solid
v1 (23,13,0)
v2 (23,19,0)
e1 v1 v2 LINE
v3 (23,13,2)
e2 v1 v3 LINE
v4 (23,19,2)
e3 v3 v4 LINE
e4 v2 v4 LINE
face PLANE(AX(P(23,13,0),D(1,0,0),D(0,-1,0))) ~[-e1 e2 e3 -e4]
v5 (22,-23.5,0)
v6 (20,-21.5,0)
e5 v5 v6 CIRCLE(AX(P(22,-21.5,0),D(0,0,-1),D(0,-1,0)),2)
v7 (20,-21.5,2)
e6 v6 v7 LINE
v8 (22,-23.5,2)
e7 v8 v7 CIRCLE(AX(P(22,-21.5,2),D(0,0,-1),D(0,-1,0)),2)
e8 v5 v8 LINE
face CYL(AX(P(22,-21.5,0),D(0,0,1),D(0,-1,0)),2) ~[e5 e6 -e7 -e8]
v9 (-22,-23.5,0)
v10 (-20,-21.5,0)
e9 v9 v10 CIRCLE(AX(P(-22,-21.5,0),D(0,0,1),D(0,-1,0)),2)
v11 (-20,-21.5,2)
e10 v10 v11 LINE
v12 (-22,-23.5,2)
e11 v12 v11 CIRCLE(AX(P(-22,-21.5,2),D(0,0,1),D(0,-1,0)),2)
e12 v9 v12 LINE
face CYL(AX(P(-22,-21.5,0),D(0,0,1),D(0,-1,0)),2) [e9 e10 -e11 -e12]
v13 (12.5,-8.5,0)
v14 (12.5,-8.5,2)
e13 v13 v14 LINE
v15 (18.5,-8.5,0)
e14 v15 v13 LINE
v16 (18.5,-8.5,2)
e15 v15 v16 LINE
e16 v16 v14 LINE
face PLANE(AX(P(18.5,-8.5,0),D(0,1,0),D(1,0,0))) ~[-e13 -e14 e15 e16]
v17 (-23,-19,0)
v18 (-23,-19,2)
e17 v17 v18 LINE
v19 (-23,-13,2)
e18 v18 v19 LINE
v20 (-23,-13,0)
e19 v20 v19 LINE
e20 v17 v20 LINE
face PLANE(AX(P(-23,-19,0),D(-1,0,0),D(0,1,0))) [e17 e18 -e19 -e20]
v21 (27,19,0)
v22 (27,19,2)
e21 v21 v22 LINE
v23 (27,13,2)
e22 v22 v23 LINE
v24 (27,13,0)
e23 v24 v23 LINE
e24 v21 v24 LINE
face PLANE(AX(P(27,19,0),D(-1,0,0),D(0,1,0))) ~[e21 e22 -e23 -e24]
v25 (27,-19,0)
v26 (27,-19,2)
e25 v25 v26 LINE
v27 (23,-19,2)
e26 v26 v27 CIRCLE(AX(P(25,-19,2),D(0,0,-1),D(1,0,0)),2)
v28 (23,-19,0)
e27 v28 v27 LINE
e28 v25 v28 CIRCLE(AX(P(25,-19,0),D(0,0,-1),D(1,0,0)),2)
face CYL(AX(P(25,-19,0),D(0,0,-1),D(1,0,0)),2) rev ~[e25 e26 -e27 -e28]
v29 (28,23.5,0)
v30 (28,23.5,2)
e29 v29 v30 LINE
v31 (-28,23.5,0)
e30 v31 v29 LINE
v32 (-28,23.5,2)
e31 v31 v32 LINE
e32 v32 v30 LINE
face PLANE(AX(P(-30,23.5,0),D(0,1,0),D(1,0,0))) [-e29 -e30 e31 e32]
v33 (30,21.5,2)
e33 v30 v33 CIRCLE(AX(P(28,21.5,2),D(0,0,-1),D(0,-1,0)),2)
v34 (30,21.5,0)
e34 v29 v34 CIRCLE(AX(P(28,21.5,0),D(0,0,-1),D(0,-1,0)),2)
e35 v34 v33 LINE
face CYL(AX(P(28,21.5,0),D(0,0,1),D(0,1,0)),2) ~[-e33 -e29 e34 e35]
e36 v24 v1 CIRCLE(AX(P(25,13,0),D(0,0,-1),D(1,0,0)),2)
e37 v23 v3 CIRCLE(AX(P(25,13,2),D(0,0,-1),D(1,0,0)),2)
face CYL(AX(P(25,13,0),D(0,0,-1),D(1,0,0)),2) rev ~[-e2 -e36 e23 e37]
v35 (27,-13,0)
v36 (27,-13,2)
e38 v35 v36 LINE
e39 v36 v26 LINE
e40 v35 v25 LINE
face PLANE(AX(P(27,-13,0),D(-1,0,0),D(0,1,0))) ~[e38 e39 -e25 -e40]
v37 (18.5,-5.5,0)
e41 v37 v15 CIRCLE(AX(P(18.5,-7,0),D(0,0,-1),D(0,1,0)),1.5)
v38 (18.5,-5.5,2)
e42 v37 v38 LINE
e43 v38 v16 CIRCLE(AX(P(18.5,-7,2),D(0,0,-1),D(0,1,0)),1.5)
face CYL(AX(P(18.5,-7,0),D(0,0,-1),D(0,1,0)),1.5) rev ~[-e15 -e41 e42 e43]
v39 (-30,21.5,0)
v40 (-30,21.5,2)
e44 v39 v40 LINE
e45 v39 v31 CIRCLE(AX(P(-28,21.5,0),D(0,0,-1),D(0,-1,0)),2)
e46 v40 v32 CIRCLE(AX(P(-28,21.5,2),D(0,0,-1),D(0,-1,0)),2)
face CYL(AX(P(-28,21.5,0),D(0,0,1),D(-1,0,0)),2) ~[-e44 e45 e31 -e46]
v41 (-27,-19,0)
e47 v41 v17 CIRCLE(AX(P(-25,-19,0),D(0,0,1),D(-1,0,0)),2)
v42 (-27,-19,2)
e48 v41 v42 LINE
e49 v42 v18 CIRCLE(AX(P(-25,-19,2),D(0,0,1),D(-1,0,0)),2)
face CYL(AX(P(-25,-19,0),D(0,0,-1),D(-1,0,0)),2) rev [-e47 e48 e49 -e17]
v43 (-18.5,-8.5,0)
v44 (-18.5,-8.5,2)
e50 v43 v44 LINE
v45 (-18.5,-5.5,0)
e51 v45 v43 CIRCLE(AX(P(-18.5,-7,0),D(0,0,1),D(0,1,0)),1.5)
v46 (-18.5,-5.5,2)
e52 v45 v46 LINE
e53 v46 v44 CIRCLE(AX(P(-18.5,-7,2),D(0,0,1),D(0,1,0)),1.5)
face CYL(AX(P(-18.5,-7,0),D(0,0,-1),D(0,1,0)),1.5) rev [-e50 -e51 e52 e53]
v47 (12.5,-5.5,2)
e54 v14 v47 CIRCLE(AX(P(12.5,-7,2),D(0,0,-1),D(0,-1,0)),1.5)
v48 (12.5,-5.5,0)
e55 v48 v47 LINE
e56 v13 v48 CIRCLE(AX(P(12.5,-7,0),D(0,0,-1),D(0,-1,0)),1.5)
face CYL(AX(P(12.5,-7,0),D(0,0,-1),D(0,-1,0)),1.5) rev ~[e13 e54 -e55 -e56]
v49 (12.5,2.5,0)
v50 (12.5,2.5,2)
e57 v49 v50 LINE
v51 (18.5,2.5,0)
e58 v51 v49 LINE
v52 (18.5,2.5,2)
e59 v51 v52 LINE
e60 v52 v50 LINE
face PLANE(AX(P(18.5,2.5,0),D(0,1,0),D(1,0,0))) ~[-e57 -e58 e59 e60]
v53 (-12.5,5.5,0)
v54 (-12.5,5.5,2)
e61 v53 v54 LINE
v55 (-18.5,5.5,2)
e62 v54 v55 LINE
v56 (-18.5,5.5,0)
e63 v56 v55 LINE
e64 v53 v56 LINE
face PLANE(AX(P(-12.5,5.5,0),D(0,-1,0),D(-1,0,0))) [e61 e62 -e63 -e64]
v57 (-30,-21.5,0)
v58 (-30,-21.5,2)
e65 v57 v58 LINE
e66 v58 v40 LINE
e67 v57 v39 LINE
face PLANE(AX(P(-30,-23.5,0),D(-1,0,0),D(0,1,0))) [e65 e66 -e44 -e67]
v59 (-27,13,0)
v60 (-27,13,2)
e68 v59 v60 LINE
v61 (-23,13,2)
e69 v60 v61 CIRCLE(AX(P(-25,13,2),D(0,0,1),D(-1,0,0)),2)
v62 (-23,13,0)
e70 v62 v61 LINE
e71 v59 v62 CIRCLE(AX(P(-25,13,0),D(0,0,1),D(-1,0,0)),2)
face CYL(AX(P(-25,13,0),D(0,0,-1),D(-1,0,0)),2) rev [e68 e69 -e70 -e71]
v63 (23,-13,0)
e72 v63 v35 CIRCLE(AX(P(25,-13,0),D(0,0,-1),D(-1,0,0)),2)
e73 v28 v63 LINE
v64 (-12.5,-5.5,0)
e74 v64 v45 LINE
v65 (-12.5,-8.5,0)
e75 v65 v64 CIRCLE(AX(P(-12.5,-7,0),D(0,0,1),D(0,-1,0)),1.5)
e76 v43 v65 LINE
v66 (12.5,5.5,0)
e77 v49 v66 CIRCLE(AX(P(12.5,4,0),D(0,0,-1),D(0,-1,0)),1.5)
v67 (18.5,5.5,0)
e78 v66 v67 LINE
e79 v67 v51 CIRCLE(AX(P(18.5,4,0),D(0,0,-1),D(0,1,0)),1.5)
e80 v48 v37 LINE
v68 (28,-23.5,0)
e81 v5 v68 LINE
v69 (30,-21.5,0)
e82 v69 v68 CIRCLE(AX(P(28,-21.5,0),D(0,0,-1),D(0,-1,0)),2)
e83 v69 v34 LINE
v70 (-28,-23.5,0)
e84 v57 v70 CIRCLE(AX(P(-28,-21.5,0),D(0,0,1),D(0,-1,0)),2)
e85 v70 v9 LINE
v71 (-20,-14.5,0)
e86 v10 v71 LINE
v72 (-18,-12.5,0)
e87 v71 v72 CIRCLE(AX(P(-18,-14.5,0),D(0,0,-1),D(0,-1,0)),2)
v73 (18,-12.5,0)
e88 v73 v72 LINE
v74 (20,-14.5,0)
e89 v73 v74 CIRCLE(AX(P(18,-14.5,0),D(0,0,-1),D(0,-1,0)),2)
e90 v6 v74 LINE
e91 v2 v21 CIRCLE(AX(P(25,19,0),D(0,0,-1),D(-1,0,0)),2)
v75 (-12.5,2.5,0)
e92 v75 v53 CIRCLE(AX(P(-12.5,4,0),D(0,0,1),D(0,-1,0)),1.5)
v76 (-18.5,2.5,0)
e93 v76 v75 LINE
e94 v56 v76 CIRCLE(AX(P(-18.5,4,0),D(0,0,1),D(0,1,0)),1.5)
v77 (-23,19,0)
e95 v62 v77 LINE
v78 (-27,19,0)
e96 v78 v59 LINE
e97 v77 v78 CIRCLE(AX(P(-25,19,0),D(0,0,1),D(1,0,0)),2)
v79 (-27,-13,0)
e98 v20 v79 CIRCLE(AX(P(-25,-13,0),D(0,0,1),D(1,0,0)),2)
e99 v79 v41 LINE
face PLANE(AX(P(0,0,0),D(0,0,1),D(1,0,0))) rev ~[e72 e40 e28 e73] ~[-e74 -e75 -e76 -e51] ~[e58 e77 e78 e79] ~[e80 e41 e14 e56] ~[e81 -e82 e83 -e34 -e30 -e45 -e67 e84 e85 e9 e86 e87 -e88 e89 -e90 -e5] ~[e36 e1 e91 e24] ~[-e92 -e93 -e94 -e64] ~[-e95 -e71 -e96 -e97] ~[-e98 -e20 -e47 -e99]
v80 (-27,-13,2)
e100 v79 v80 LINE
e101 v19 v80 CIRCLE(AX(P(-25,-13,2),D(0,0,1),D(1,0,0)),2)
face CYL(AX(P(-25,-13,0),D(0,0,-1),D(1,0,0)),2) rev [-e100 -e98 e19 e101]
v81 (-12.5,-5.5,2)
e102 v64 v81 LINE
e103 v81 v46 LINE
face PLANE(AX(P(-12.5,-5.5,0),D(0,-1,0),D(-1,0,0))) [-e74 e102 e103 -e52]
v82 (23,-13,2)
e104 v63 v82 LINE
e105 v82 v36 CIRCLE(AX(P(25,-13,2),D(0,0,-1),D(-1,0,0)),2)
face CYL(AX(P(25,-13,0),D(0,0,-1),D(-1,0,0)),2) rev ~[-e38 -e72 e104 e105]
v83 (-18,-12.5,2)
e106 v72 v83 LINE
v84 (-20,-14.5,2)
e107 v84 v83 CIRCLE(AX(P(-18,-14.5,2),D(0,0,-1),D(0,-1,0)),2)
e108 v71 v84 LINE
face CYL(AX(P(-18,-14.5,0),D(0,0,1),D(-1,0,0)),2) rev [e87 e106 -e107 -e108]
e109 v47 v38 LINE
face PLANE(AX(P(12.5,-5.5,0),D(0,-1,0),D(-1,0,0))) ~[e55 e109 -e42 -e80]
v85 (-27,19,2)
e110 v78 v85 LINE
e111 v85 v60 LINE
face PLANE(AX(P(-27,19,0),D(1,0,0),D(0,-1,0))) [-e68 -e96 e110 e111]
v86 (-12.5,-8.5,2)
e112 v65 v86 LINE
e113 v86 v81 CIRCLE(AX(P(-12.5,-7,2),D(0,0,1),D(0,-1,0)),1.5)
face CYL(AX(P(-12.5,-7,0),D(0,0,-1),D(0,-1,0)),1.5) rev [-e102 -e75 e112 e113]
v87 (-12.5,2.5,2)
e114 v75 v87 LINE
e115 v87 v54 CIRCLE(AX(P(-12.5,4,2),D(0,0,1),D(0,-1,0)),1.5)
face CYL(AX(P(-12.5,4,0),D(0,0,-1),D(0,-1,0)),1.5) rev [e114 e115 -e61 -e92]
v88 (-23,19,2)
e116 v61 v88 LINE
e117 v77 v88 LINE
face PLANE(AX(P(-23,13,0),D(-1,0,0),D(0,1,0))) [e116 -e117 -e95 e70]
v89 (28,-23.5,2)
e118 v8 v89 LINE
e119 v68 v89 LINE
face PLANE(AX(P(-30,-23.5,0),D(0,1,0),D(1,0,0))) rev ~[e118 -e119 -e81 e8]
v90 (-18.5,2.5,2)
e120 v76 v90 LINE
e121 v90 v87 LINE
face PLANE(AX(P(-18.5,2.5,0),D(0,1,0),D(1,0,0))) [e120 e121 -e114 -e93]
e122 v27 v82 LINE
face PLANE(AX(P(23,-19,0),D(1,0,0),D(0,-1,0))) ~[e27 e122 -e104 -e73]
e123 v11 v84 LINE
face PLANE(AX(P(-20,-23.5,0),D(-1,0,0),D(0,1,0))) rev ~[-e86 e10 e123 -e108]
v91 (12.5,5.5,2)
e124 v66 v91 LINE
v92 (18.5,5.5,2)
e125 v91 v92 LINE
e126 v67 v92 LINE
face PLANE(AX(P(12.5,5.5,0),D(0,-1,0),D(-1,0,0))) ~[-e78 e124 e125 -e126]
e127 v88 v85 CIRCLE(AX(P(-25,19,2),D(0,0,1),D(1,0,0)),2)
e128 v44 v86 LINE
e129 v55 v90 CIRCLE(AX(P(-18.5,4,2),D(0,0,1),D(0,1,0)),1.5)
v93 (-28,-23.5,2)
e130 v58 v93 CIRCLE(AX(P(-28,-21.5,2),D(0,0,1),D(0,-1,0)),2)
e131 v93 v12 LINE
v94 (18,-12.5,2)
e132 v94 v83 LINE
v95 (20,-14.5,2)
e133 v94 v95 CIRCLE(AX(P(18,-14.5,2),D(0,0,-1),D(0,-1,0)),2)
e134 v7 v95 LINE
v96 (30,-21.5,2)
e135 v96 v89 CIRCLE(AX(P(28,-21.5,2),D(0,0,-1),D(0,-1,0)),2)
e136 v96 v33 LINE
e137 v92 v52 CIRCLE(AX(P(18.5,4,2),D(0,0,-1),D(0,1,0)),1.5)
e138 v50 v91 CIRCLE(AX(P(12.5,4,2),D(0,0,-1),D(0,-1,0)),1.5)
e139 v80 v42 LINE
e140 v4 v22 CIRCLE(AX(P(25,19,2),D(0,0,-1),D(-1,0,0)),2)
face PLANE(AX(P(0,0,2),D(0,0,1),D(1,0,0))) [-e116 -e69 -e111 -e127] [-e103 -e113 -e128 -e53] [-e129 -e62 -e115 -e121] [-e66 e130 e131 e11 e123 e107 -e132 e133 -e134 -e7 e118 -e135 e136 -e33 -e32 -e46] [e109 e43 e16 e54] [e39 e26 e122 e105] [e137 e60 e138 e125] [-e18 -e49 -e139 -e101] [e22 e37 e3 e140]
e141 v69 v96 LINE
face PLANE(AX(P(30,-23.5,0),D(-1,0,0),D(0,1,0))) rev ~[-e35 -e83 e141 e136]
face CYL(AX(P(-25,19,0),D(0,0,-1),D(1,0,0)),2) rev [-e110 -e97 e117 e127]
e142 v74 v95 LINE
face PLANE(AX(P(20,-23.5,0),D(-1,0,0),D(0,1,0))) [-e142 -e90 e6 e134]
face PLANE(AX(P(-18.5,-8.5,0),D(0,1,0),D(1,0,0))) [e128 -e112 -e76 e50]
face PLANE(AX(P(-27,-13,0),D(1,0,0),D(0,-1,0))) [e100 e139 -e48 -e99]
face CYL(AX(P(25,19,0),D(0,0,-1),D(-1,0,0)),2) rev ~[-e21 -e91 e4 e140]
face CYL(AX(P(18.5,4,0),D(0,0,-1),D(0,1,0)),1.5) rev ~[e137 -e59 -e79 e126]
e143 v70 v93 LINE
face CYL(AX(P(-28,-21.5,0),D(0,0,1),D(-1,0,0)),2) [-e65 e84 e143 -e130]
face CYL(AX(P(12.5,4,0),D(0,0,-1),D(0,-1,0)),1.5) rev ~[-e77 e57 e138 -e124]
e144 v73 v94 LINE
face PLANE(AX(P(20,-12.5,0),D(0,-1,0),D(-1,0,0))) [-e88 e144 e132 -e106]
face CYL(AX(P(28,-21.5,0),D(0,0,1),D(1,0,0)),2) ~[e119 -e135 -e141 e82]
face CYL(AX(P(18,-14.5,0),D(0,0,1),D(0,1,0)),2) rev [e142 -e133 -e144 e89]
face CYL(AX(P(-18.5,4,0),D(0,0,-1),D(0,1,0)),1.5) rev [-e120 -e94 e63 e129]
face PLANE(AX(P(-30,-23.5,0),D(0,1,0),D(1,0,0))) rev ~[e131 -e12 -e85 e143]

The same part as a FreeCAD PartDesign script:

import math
import FreeCAD as App
import Part
import Sketcher

V = App.Vector
Q = App.Units.Quantity


def edges_at(feature, points):
    """Names of the edges that pass closest to the given points."""
    edges = feature.Shape.Edges
    near = lambda p: min(range(len(edges)), key=lambda i: edges[i].distToShape(Part.Vertex(*p))[0])
    return sorted({f"Edge{near(p) + 1}" for p in points})


def add_polygon(sketch, points):
    """Adds a closed chain of lines whose ends are joined by coincident constraints."""
    first, n = sketch.GeometryCount, len(points)
    for a, b in zip(points, points[1:] + points[:1]):
        sketch.addGeometry(Part.LineSegment(App.Vector(*a, 0), App.Vector(*b, 0)), False)
    for i in range(n):
        sketch.addConstraint(Sketcher.Constraint("Coincident", first + i, 2, first + (i + 1) % n, 1))

doc = App.newDocument("Part")
params = doc.addObject("Spreadsheet::Sheet", "Params")
for row, (alias, value) in enumerate([
    ("sketch1_width", "60 mm"),
    ("sketch1_height", "47 mm"),
    ("pad1_length", "2 mm"),
    ("sketch2_width", "40 mm"),
    ("sketch2_height", "11 mm"),
    ("pocket1_length", "2 mm"),
    ("sketch3_radius", "2 mm"),
    ("sketch3_height", "6 mm"),
    ("pocket2_length", "2 mm"),
    ("sketch4_radius", "2 mm"),
    ("sketch4_height", "6 mm"),
    ("pocket3_length", "2 mm"),
    ("sketch5_radius", "1.5 mm"),
    ("sketch5_width", "6 mm"),
    ("pocket4_length", "2 mm"),
    ("sketch6_radius", "1.5 mm"),
    ("sketch6_width", "6 mm"),
    ("pocket5_length", "2 mm"),
    ("fillet_radius", "2 mm"),
], start=1):
    params.set(f"A{row}", alias)
    params.set(f"B{row}", "=" + value)
    params.setAlias(f"B{row}", alias)

body = doc.addObject("PartDesign::Body", "Body")

sketch1 = body.newObject("Sketcher::SketchObject", "Sketch")
sketch1.AttachmentSupport = (doc.getObject("XY_Plane"), [""])
sketch1.MapMode = "FlatFace"
add_polygon(sketch1, [(-30, 24), (-30, -24), (30, -24), (30, 24)])
sketch1.addConstraint([
    Sketcher.Constraint("Vertical", 0),
    Sketcher.Constraint("Horizontal", 1),
    Sketcher.Constraint("Vertical", 2),
    Sketcher.Constraint("Horizontal", 3),
    Sketcher.Constraint("Symmetric", 0, 2, 2, 2, -1, 1),
    Sketcher.Constraint("DistanceX", 1, 1, 1, 2, Q("60 mm")),
    Sketcher.Constraint("DistanceY", 0, 2, 0, 1, Q("47 mm")),
])
sketch1.setExpression("Constraints[9]", "Params.sketch1_width")
sketch1.setExpression("Constraints[10]", "Params.sketch1_height")
pad1 = body.newObject("PartDesign::Pad", "Pad")
pad1.Profile = sketch1
pad1.setExpression("Length", "Params.pad1_length")

sketch2 = body.newObject("Sketcher::SketchObject", "Sketch001")
sketch2.AttachmentSupport = (doc.getObject("XY_Plane"), [""])
sketch2.MapMode = "FlatFace"
add_polygon(sketch2, [(20, -12), (20, -24), (-20, -24), (-20, -12)])
sketch2.addConstraint([
    Sketcher.Constraint("Vertical", 0),
    Sketcher.Constraint("Horizontal", 1),
    Sketcher.Constraint("Vertical", 2),
    Sketcher.Constraint("Horizontal", 3),
    Sketcher.Constraint("DistanceX", 1, 2, 1, 1, Q("40 mm")),
    Sketcher.Constraint("DistanceY", 0, 2, 0, 1, Q("11 mm")),
    Sketcher.Constraint("DistanceX", -1, 1, 0, 2, Q("20 mm")),
    Sketcher.Constraint("DistanceY", 0, 2, -1, 1, Q("23.5 mm")),
])
sketch2.setExpression("Constraints[8]", "Params.sketch2_width")
sketch2.setExpression("Constraints[9]", "Params.sketch2_height")
pocket1 = body.newObject("PartDesign::Pocket", "Pocket")
pocket1.Profile = sketch2
pocket1.setExpression("Length", "Params.pocket1_length")
pocket1.Reversed = True

sketch3 = body.newObject("Sketcher::SketchObject", "Sketch002")
sketch3.AttachmentSupport = (doc.getObject("XY_Plane"), [""])
sketch3.MapMode = "FlatFace"
sketch3.addGeometry([
    Part.LineSegment(V(-27, -19, 0), V(-27, -13, 0)),
    Part.ArcOfCircle(Part.Circle(V(-25, -13, 0), V(0, 0, 1), 2), math.radians(0), math.radians(180)),
    Part.LineSegment(V(-23, -13, 0), V(-23, -19, 0)),
    Part.ArcOfCircle(Part.Circle(V(-25, -19, 0), V(0, 0, 1), 2), math.radians(180), math.radians(360)),
], False)
sketch3.addConstraint([
    Sketcher.Constraint("Tangent", 0, 2, 1, 2),
    Sketcher.Constraint("Tangent", 1, 1, 2, 1),
    Sketcher.Constraint("Tangent", 2, 2, 3, 2),
    Sketcher.Constraint("Tangent", 3, 1, 0, 1),
    Sketcher.Constraint("Vertical", 0),
    Sketcher.Constraint("Vertical", 2),
    Sketcher.Constraint("Radius", 1, Q("2 mm")),
    Sketcher.Constraint("DistanceY", 0, 1, 0, 2, Q("6 mm")),
    Sketcher.Constraint("DistanceX", 1, 3, -1, 1, Q("25 mm")),
    Sketcher.Constraint("DistanceY", 1, 3, -1, 1, Q("13 mm")),
])
sketch3.setExpression("Constraints[6]", "Params.sketch3_radius")
sketch3.setExpression("Constraints[7]", "Params.sketch3_height")
pocket2 = body.newObject("PartDesign::Pocket", "Pocket001")
pocket2.Profile = sketch3
pocket2.setExpression("Length", "Params.pocket2_length")
pocket2.Reversed = True

sketch4 = body.newObject("Sketcher::SketchObject", "Sketch003")
sketch4.AttachmentSupport = (doc.getObject("XY_Plane"), [""])
sketch4.MapMode = "FlatFace"
sketch4.addGeometry([
    Part.LineSegment(V(-27, 13, 0), V(-27, 19, 0)),
    Part.ArcOfCircle(Part.Circle(V(-25, 19, 0), V(0, 0, 1), 2), math.radians(0), math.radians(180)),
    Part.LineSegment(V(-23, 19, 0), V(-23, 13, 0)),
    Part.ArcOfCircle(Part.Circle(V(-25, 13, 0), V(0, 0, 1), 2), math.radians(180), math.radians(360)),
], False)
sketch4.addConstraint([
    Sketcher.Constraint("Tangent", 0, 2, 1, 2),
    Sketcher.Constraint("Tangent", 1, 1, 2, 1),
    Sketcher.Constraint("Tangent", 2, 2, 3, 2),
    Sketcher.Constraint("Tangent", 3, 1, 0, 1),
    Sketcher.Constraint("Vertical", 0),
    Sketcher.Constraint("Vertical", 2),
    Sketcher.Constraint("Radius", 1, Q("2 mm")),
    Sketcher.Constraint("DistanceY", 0, 1, 0, 2, Q("6 mm")),
    Sketcher.Constraint("DistanceX", 1, 3, -1, 1, Q("25 mm")),
    Sketcher.Constraint("DistanceY", -1, 1, 1, 3, Q("19 mm")),
])
sketch4.setExpression("Constraints[6]", "Params.sketch4_radius")
sketch4.setExpression("Constraints[7]", "Params.sketch4_height")
pocket3 = body.newObject("PartDesign::Pocket", "Pocket002")
pocket3.Profile = sketch4
pocket3.setExpression("Length", "Params.pocket3_length")
pocket3.Reversed = True

sketch5 = body.newObject("Sketcher::SketchObject", "Sketch004")
sketch5.AttachmentSupport = (doc.getObject("XY_Plane"), [""])
sketch5.MapMode = "FlatFace"
sketch5.addGeometry([
    Part.LineSegment(V(-18.5, -5.5, 0), V(-12.5, -5.5, 0)),
    Part.ArcOfCircle(Part.Circle(V(-12.5, -7, 0), V(0, 0, 1), 1.5), math.radians(-90), math.radians(90)),
    Part.LineSegment(V(-12.5, -8.5, 0), V(-18.5, -8.5, 0)),
    Part.ArcOfCircle(Part.Circle(V(-18.5, -7, 0), V(0, 0, 1), 1.5), math.radians(90), math.radians(270)),
], False)
sketch5.addConstraint([
    Sketcher.Constraint("Tangent", 0, 2, 1, 2),
    Sketcher.Constraint("Tangent", 1, 1, 2, 1),
    Sketcher.Constraint("Tangent", 2, 2, 3, 2),
    Sketcher.Constraint("Tangent", 3, 1, 0, 1),
    Sketcher.Constraint("Horizontal", 0),
    Sketcher.Constraint("Horizontal", 2),
    Sketcher.Constraint("Radius", 1, Q("1.5 mm")),
    Sketcher.Constraint("DistanceX", 0, 1, 0, 2, Q("6 mm")),
    Sketcher.Constraint("DistanceY", 1, 3, -1, 1, Q("7 mm")),
    Sketcher.Constraint("DistanceX", 1, 3, -1, 1, Q("12.5 mm")),
])
sketch5.setExpression("Constraints[6]", "Params.sketch5_radius")
sketch5.setExpression("Constraints[7]", "Params.sketch5_width")
pocket4 = body.newObject("PartDesign::Pocket", "Pocket003")
pocket4.Profile = sketch5
pocket4.setExpression("Length", "Params.pocket4_length")
pocket4.Reversed = True

sketch6 = body.newObject("Sketcher::SketchObject", "Sketch005")
sketch6.AttachmentSupport = (doc.getObject("XY_Plane"), [""])
sketch6.MapMode = "FlatFace"
sketch6.addGeometry([
    Part.LineSegment(V(-18.5, 5.5, 0), V(-12.5, 5.5, 0)),
    Part.ArcOfCircle(Part.Circle(V(-12.5, 4, 0), V(0, 0, 1), 1.5), math.radians(-90), math.radians(90)),
    Part.LineSegment(V(-12.5, 2.5, 0), V(-18.5, 2.5, 0)),
    Part.ArcOfCircle(Part.Circle(V(-18.5, 4, 0), V(0, 0, 1), 1.5), math.radians(90), math.radians(270)),
], False)
sketch6.addConstraint([
    Sketcher.Constraint("Tangent", 0, 2, 1, 2),
    Sketcher.Constraint("Tangent", 1, 1, 2, 1),
    Sketcher.Constraint("Tangent", 2, 2, 3, 2),
    Sketcher.Constraint("Tangent", 3, 1, 0, 1),
    Sketcher.Constraint("Horizontal", 0),
    Sketcher.Constraint("Horizontal", 2),
    Sketcher.Constraint("Radius", 1, Q("1.5 mm")),
    Sketcher.Constraint("DistanceX", 0, 1, 0, 2, Q("6 mm")),
    Sketcher.Constraint("DistanceY", -1, 1, 1, 3, Q("4 mm")),
    Sketcher.Constraint("DistanceX", 1, 3, -1, 1, Q("12.5 mm")),
])
sketch6.setExpression("Constraints[6]", "Params.sketch6_radius")
sketch6.setExpression("Constraints[7]", "Params.sketch6_width")
pocket5 = body.newObject("PartDesign::Pocket", "Pocket004")
pocket5.Profile = sketch6
pocket5.setExpression("Length", "Params.pocket5_length")
pocket5.Reversed = True
doc.recompute()

mirrored = body.newObject("PartDesign::Mirrored", "Mirrored")
mirrored.Originals = [pocket2, pocket3, pocket4, pocket5]
mirrored.MirrorPlane = (doc.getObject("YZ_Plane"), [""])
body.Tip = mirrored
doc.recompute()

fillet = body.newObject("PartDesign::Fillet", "Fillet")
fillet.Base = (mirrored, edges_at(mirrored, [
    (-20, -12.5, 1),
    (-20, -23.5, 1),
    (20, -23.5, 1),
    (20, -12.5, 1),
    (30, -23.5, 1),
    (-30, -23.5, 1),
    (-30, 23.5, 1),
    (30, 23.5, 1),
]))
fillet.setExpression("Radius", "Params.fillet_radius")

doc.recompute()
